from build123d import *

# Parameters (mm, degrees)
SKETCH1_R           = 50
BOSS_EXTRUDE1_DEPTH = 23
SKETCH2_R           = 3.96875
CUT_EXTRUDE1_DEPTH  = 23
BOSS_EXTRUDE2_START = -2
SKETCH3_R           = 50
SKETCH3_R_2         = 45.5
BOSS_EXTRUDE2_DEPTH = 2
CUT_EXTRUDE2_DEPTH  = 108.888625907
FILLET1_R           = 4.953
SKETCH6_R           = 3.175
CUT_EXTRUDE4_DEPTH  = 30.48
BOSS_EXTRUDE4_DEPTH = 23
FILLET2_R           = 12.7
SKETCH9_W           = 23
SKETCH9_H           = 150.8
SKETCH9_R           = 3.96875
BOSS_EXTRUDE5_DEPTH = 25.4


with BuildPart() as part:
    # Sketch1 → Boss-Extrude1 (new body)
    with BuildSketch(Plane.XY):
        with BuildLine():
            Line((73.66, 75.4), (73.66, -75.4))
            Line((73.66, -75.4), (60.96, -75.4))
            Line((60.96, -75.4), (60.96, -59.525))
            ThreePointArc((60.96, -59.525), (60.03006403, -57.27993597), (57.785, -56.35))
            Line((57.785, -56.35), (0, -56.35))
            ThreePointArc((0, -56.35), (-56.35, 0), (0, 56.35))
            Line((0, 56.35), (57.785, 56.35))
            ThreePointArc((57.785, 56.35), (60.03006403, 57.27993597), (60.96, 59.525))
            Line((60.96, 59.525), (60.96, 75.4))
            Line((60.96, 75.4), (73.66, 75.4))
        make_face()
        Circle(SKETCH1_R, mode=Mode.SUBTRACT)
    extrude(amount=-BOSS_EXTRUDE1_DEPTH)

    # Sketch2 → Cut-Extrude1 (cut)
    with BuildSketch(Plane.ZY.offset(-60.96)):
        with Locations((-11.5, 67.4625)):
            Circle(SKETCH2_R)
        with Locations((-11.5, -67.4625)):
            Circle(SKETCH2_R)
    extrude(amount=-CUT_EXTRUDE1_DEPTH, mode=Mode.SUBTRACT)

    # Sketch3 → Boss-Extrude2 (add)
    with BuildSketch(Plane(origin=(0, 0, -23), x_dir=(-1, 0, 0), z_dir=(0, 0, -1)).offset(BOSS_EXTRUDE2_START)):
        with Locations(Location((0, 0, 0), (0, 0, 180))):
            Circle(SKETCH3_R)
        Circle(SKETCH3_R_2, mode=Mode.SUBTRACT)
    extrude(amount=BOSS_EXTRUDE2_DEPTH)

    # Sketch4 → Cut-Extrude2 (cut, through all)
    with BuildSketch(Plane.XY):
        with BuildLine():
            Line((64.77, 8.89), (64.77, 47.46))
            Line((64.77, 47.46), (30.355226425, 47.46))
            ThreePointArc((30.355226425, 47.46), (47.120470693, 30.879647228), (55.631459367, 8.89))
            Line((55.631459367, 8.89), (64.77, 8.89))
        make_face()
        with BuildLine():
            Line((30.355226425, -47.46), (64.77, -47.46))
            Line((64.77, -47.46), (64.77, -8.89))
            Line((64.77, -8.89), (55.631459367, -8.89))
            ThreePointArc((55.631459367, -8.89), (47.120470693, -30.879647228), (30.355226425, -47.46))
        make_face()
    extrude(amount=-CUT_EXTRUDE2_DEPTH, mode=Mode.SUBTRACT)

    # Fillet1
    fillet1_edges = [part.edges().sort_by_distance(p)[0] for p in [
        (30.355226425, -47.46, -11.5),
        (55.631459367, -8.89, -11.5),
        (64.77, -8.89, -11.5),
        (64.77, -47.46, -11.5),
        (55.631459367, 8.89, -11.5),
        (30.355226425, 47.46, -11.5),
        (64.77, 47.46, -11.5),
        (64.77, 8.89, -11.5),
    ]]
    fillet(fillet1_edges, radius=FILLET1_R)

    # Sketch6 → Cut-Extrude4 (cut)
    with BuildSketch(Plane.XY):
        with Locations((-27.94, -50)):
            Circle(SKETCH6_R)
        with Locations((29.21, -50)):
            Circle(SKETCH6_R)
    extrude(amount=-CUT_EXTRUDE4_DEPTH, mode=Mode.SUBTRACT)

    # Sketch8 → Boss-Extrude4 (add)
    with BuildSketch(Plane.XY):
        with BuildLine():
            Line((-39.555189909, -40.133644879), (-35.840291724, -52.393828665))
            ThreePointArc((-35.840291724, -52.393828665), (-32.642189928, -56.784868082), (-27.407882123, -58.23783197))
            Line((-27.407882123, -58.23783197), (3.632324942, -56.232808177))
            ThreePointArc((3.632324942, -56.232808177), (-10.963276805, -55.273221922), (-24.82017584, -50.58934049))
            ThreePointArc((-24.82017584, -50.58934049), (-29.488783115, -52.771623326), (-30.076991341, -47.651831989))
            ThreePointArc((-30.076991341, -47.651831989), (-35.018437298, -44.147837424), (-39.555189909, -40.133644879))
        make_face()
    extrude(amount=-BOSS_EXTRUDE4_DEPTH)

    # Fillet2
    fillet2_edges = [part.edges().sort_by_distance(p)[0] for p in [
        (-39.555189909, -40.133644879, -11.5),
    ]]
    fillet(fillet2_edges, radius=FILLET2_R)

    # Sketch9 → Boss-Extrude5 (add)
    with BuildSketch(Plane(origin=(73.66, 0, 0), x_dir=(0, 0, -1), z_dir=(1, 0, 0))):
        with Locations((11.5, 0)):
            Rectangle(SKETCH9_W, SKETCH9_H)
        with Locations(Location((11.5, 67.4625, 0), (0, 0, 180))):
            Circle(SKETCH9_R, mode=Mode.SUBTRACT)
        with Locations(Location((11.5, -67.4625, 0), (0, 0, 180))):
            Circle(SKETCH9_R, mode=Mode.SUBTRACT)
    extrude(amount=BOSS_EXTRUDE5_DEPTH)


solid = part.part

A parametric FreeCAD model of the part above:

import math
import FreeCAD as App
import Part
import Sketcher

V = App.Vector
Q = App.Units.Quantity


def edges_at(feature, points):
    """Names of the edges that pass closest to the given points."""
    edges = feature.Shape.Edges
    near = lambda p: min(range(len(edges)), key=lambda i: edges[i].distToShape(Part.Vertex(*p))[0])
    return sorted({f"Edge{near(p) + 1}" for p in points})

doc = App.newDocument("Part")
body = doc.addObject("PartDesign::Body", "Body")

# Sketch on XY plane
sketch1 = body.newObject("Sketcher::SketchObject", "Sketch")
sketch1.AttachmentSupport = (doc.getObject("XY_Plane"), [""])
sketch1.MapMode = "FlatFace"
sketch1.addGeometry(Part.LineSegment(V(73.66, -75.4, 0), V(73.66, 75.4, 0)), False)
sketch1.addGeometry(Part.LineSegment(V(73.66, 75.4, 0), V(60.96, 75.4, 0)), False)
sketch1.addGeometry(Part.LineSegment(V(60.96, 75.4, 0), V(60.96, 59.525, 0)), False)
sketch1.addGeometry(Part.ArcOfCircle(Part.Circle(V(57.785, 59.525, 0), V(0, 0, 1), 3.175), math.radians(-90), math.radians(0)), False)
sketch1.addGeometry(Part.LineSegment(V(57.785, 56.35, 0), V(0, 56.35, 0)), False)
sketch1.addGeometry(Part.ArcOfCircle(Part.Circle(V(0, 0, 0), V(0, 0, 1), 56.35), math.radians(90), math.radians(270)), False)
sketch1.addGeometry(Part.LineSegment(V(0, -56.35, 0), V(57.785, -56.35, 0)), False)
sketch1.addGeometry(Part.ArcOfCircle(Part.Circle(V(57.785, -59.525, 0), V(0, 0, 1), 3.175), math.radians(0), math.radians(90)), False)
sketch1.addGeometry(Part.LineSegment(V(60.96, -59.525, 0), V(60.96, -75.4, 0)), False)
sketch1.addGeometry(Part.LineSegment(V(60.96, -75.4, 0), V(73.66, -75.4, 0)), False)
sketch1.addGeometry(Part.Circle(V(0, 0, 0), V(0, 0, 1), 50), False)
sketch1.addConstraint(Sketcher.Constraint("Coincident", 0, 2, 1, 1))
sketch1.addConstraint(Sketcher.Constraint("Coincident", 1, 2, 2, 1))
sketch1.addConstraint(Sketcher.Constraint("Tangent", 2, 2, 3, 2))
sketch1.addConstraint(Sketcher.Constraint("Tangent", 3, 1, 4, 1))
sketch1.addConstraint(Sketcher.Constraint("Tangent", 4, 2, 5, 1))
sketch1.addConstraint(Sketcher.Constraint("Tangent", 5, 2, 6, 1))
sketch1.addConstraint(Sketcher.Constraint("Tangent", 6, 2, 7, 2))
sketch1.addConstraint(Sketcher.Constraint("Tangent", 7, 1, 8, 1))
sketch1.addConstraint(Sketcher.Constraint("Coincident", 8, 2, 9, 1))
sketch1.addConstraint(Sketcher.Constraint("Coincident", 9, 2, 0, 1))
sketch1.addConstraint(Sketcher.Constraint("Vertical", 0))
sketch1.addConstraint(Sketcher.Constraint("Horizontal", 1))
sketch1.addConstraint(Sketcher.Constraint("Vertical", 2))
sketch1.addConstraint(Sketcher.Constraint("Horizontal", 4))
sketch1.addConstraint(Sketcher.Constraint("Horizontal", 6))
sketch1.addConstraint(Sketcher.Constraint("Vertical", 8))
sketch1.addConstraint(Sketcher.Constraint("Horizontal", 9))
sketch1.addConstraint(Sketcher.Constraint("Coincident", 5, 3, -1, 1))
sketch1.addConstraint(Sketcher.Constraint("Coincident", 10, 3, -1, 1))
sketch1.addConstraint(Sketcher.Constraint("Equal", 3, 7))
sketch1.addConstraint(Sketcher.Constraint("Symmetric", 1, 2, 8, 2, -1))
sketch1.addConstraint(Sketcher.Constraint("DistanceX", 1, 2, 1, 1, Q("0.5 in")))
sketch1.addConstraint(Sketcher.Constraint("Radius", 3, Q("0.125 in")))
sketch1.addConstraint(Sketcher.Constraint("DistanceX", -1, 1, 0, 2, Q("2.9 in")))
sketch1.addConstraint(Sketcher.Constraint("Diameter", 10, Q("100 mm")))
sketch1.addConstraint(Sketcher.Constraint("DistanceY", 2, 2, 2, 1, Q("0.625 in")))
sketch1.addConstraint(Sketcher.Constraint("Radius", 5, Q("56.35 mm")))
pad1 = body.newObject("PartDesign::Pad", "Pad")
pad1.Profile = sketch1
pad1.Length = 23
pad1.Reversed = True

# Sketch on YZ plane
sketch2 = body.newObject("Sketcher::SketchObject", "Sketch001")
sketch2.AttachmentSupport = (doc.getObject("YZ_Plane"), [""])
sketch2.MapMode = "FlatFace"
sketch2.AttachmentOffset = App.Placement(V(0, 0, 2.4 * 25.4), App.Rotation())
sketch2.addGeometry(Part.Circle(V(67.4625, -11.5, 0), V(0, 0, 1), 3.96875), False)
sketch2.addGeometry(Part.Circle(V(-67.4625, -11.5, 0), V(0, 0, 1), 3.96875), False)
sketch2.addConstraint(Sketcher.Constraint("Equal", 0, 1))
sketch2.addConstraint(Sketcher.Constraint("Symmetric", 0, 3, 1, 3, -2))
sketch2.addConstraint(Sketcher.Constraint("Diameter", 0, Q("0.3125 in")))
sketch2.addConstraint(Sketcher.Constraint("DistanceX", -1, 1, 0, 3, Q("67.4625 mm")))
sketch2.addConstraint(Sketcher.Constraint("DistanceY", 0, 3, -1, 1, Q("11.5 mm")))
pocket1 = body.newObject("PartDesign::Pocket", "Pocket")
pocket1.Profile = sketch2
pocket1.Length = 23
pocket1.Reversed = True

# Sketch on XY plane
sketch3 = body.newObject("Sketcher::SketchObject", "Sketch002")
sketch3.AttachmentSupport = (doc.getObject("XY_Plane"), [""])
sketch3.MapMode = "FlatFace"
sketch3.AttachmentOffset = App.Placement(V(0, 0, -21), App.Rotation())
sketch3.addGeometry(Part.Circle(V(0, 0, 0), V(0, 0, 1), 50), False)
sketch3.addGeometry(Part.Circle(V(0, 0, 0), V(0, 0, 1), 45.5), False)
sketch3.addConstraint(Sketcher.Constraint("Coincident", 0, 3, -1, 1))
sketch3.addConstraint(Sketcher.Constraint("Coincident", 1, 3, -1, 1))
sketch3.addConstraint(Sketcher.Constraint("Diameter", 0, Q("100 mm")))
sketch3.addConstraint(Sketcher.Constraint("Diameter", 1, Q("91 mm")))
pad2 = body.newObject("PartDesign::Pad", "Pad001")
pad2.Profile = sketch3
pad2.Length = 2
pad2.Reversed = True

# Sketch on XY plane
sketch4 = body.newObject("Sketcher::SketchObject", "Sketch003")
sketch4.AttachmentSupport = (doc.getObject("XY_Plane"), [""])
sketch4.MapMode = "FlatFace"
sketch4.addGeometry(Part.LineSegment(V(64.77, 8.89, 0), V(64.77, 47.46, 0)), False)
sketch4.addGeometry(Part.LineSegment(V(64.77, 47.46, 0), V(30.355226, 47.46, 0)), False)
sketch4.addGeometry(Part.ArcOfCircle(Part.Circle(V(0, 0, 0), V(0, 0, 1), 56.3373), math.radians(9.079197), math.radians(57.397181)), False)
sketch4.addGeometry(Part.LineSegment(V(55.631459, 8.89, 0), V(64.77, 8.89, 0)), False)
sketch4.addGeometry(Part.LineSegment(V(30.355226, -47.46, 0), V(64.77, -47.46, 0)), False)
sketch4.addGeometry(Part.LineSegment(V(64.77, -47.46, 0), V(64.77, -8.89, 0)), False)
sketch4.addGeometry(Part.LineSegment(V(64.77, -8.89, 0), V(55.631459, -8.89, 0)), False)
sketch4.addGeometry(Part.ArcOfCircle(Part.Circle(V(0, 0, 0), V(0, 0, 1), 56.3373), math.radians(-57.397181), math.radians(-9.079197)), False)
sketch4.addConstraint(Sketcher.Constraint("Coincident", 0, 2, 1, 1))
sketch4.addConstraint(Sketcher.Constraint("Coincident", 1, 2, 2, 2))
sketch4.addConstraint(Sketcher.Constraint("Coincident", 2, 1, 3, 1))
sketch4.addConstraint(Sketcher.Constraint("Coincident", 3, 2, 0, 1))
sketch4.addConstraint(Sketcher.Constraint("Coincident", 4, 2, 5, 1))
sketch4.addConstraint(Sketcher.Constraint("Coincident", 5, 2, 6, 1))
sketch4.addConstraint(Sketcher.Constraint("Coincident", 6, 2, 7, 2))
sketch4.addConstraint(Sketcher.Constraint("Coincident", 7, 1, 4, 1))
sketch4.addConstraint(Sketcher.Constraint("Vertical", 0))
sketch4.addConstraint(Sketcher.Constraint("Horizontal", 1))
sketch4.addConstraint(Sketcher.Constraint("Horizontal", 3))
sketch4.addConstraint(Sketcher.Constraint("Horizontal", 4))
sketch4.addConstraint(Sketcher.Constraint("Vertical", 5))
sketch4.addConstraint(Sketcher.Constraint("Horizontal", 6))
sketch4.addConstraint(Sketcher.Constraint("Coincident", 2, 3, -1, 1))
sketch4.addConstraint(Sketcher.Constraint("Coincident", 7, 3, -1, 1))
sketch4.addConstraint(Sketcher.Constraint("Equal", 2, 7))
sketch4.addConstraint(Sketcher.Constraint("Symmetric", 0, 2, 4, 2, -1))
sketch4.addConstraint(Sketcher.Constraint("Vertical", 2, 1, 6, 2))
sketch4.addConstraint(Sketcher.Constraint("DistanceY", 5, 2, 3, 2, Q("0.7 in")))
sketch4.addConstraint(Sketcher.Constraint("DistanceX", -1, 1, 0, 2, Q("2.55 in")))
sketch4.addConstraint(Sketcher.Constraint("Radius", 2, Q("56.3373 mm")))
sketch4.addConstraint(Sketcher.Constraint("DistanceY", 0, 1, 0, 2, Q("38.57 mm")))
pocket2 = body.newObject("PartDesign::Pocket", "Pocket001")
pocket2.Profile = sketch4
pocket2.Type = "ThroughAll"
doc.recompute()

fillet = body.newObject("PartDesign::Fillet", "Fillet")
fillet.Base = (pocket2, edges_at(pocket2, [
    (30.355, -47.46, -11.5),
    (55.631, -8.89, -11.5),
    (64.77, -8.89, -11.5),
    (64.77, -47.46, -11.5),
    (55.631, 8.89, -11.5),
    (30.355, 47.46, -11.5),
    (64.77, 47.46, -11.5),
    (64.77, 8.89, -11.5),
]))
fillet.Radius = Q("0.195 in")

# Sketch on XY plane
sketch5 = body.newObject("Sketcher::SketchObject", "Sketch004")
sketch5.AttachmentSupport = (doc.getObject("XY_Plane"), [""])
sketch5.MapMode = "FlatFace"
sketch5.addGeometry(Part.Circle(V(-27.94, -50, 0), V(0, 0, 1), 3.175), False)
sketch5.addGeometry(Part.Circle(V(29.21, -50, 0), V(0, 0, 1), 3.175), False)
sketch5.addConstraint(Sketcher.Constraint("Equal", 0, 1))
sketch5.addConstraint(Sketcher.Constraint("Horizontal", 0, 3, 1, 3))
sketch5.addConstraint(Sketcher.Constraint("Diameter", 0, Q("0.25 in")))
sketch5.addConstraint(Sketcher.Constraint("DistanceX", 0, 3, -1, 1, Q("1.1 in")))
sketch5.addConstraint(Sketcher.Constraint("DistanceX", -1, 1, 1, 3, Q("1.15 in")))
sketch5.addConstraint(Sketcher.Constraint("DistanceY", 0, 3, -1, 1, Q("50 mm")))
pocket3 = body.newObject("PartDesign::Pocket", "Pocket002")
pocket3.Profile = sketch5
pocket3.Length = Q("1.2 in")

# Sketch on XY plane
sketch6 = body.newObject("Sketcher::SketchObject", "Sketch005")
sketch6.AttachmentSupport = (doc.getObject("XY_Plane"), [""])
sketch6.MapMode = "FlatFace"
sketch6.addGeometry(Part.LineSegment(V(-39.55519, -40.133645, 0), V(-35.840292, -52.393829, 0)), False)
sketch6.addGeometry(Part.ArcOfCircle(Part.Circle(V(-27.94, -50, 0), V(0, 0, 1), 8.255), math.radians(-163.142924), math.radians(-86.304148)), False)
sketch6.addGeometry(Part.LineSegment(V(-27.407882, -58.237832, 0), V(3.632325, -56.232808, 0)), False)
sketch6.addGeometry(Part.ArcOfCircle(Part.Circle(V(0, 0, 0), V(0, 0, 1), 56.35), math.radians(-116.133523), math.radians(-86.304148)), False)
sketch6.addGeometry(Part.ArcOfCircle(Part.Circle(V(-27.94, -50, 0), V(0, 0, 1), 3.175), math.radians(132.304309), math.radians(349.302773)), False)
sketch6.addGeometry(Part.ArcOfCircle(Part.Circle(V(0, 0, 0), V(0, 0, 1), 56.35), math.radians(-134.584102), math.radians(-122.259394)), False)
sketch6.addConstraint(Sketcher.Constraint("Tangent", 0, 2, 1, 1))
sketch6.addConstraint(Sketcher.Constraint("Tangent", 1, 2, 2, 1))
sketch6.addConstraint(Sketcher.Constraint("Tangent", 2, 2, 3, 2))
sketch6.addConstraint(Sketcher.Constraint("Coincident", 3, 1, 4, 2))
sketch6.addConstraint(Sketcher.Constraint("Coincident", 4, 1, 5, 2))
sketch6.addConstraint(Sketcher.Constraint("Coincident", 5, 1, 0, 1))
sketch6.addConstraint(Sketcher.Constraint("Coincident", 3, 3, -1, 1))
sketch6.addConstraint(Sketcher.Constraint("Coincident", 5, 3, -1, 1))
sketch6.addConstraint(Sketcher.Constraint("Coincident", 4, 3, 1, 3))
sketch6.addConstraint(Sketcher.Constraint("Equal", 3, 5))
sketch6.addConstraint(Sketcher.Constraint("Radius", 1, Q("0.325 in")))
sketch6.addConstraint(Sketcher.Constraint("Radius", 4, Q("0.125 in")))
sketch6.addConstraint(Sketcher.Constraint("DistanceX", 1, 3, -1, 1, Q("1.1 in")))
sketch6.addConstraint(Sketcher.Constraint("Radius", 3, Q("56.35 mm")))
sketch6.addConstraint(Sketcher.Constraint("DistanceY", 1, 3, -1, 1, Q("50 mm")))
sketch6.addConstraint(Sketcher.Constraint("DistanceX", 0, 2, 4, 1, Q("5.7633 mm")))
pad3 = body.newObject("PartDesign::Pad", "Pad002")
pad3.Profile = sketch6
pad3.Length = 23
pad3.Reversed = True
doc.recompute()

fillet2 = body.newObject("PartDesign::Fillet", "Fillet001")
fillet2.Base = (pad3, edges_at(pad3, [(-39.555, -40.134, -11.5)]))
fillet2.Radius = Q("0.5 in")

# Sketch on YZ plane
sketch7 = body.newObject("Sketcher::SketchObject", "Sketch006")
sketch7.AttachmentSupport = (doc.getObject("YZ_Plane"), [""])
sketch7.MapMode = "FlatFace"
sketch7.AttachmentOffset = App.Placement(V(0, 0, 2.9 * 25.4), App.Rotation())
sketch7.addGeometry(Part.LineSegment(V(75.4, 0, 0), V(-75.4, 0, 0)), False)
sketch7.addGeometry(Part.LineSegment(V(-75.4, 0, 0), V(-75.4, -23, 0)), False)
sketch7.addGeometry(Part.LineSegment(V(-75.4, -23, 0), V(75.4, -23, 0)), False)
sketch7.addGeometry(Part.LineSegment(V(75.4, -23, 0), V(75.4, 0, 0)), False)
sketch7.addGeometry(Part.Circle(V(-67.4625, -11.5, 0), V(0, 0, 1), 3.96875), False)
sketch7.addGeometry(Part.Circle(V(67.4625, -11.5, 0), V(0, 0, 1), 3.96875), False)
sketch7.addConstraint(Sketcher.Constraint("Coincident", 0, 2, 1, 1))
sketch7.addConstraint(Sketcher.Constraint("Coincident", 1, 2, 2, 1))
sketch7.addConstraint(Sketcher.Constraint("Coincident", 2, 2, 3, 1))
sketch7.addConstraint(Sketcher.Constraint("Coincident", 3, 2, 0, 1))
sketch7.addConstraint(Sketcher.Constraint("Horizontal", 0))
sketch7.addConstraint(Sketcher.Constraint("Vertical", 1))
sketch7.addConstraint(Sketcher.Constraint("Horizontal", 2))
sketch7.addConstraint(Sketcher.Constraint("Vertical", 3))
sketch7.addConstraint(Sketcher.Constraint("Equal", 4, 5))
sketch7.addConstraint(Sketcher.Constraint("Symmetric", 0, 2, 3, 2, -1, 1))
sketch7.addConstraint(Sketcher.Constraint("Symmetric", 4, 3, 5, 3, -2))
sketch7.addConstraint(Sketcher.Constraint("Diameter", 4, Q("0.3125 in")))
sketch7.addConstraint(Sketcher.Constraint("DistanceX", 0, 2, 4, 3, Q("0.3125 in")))
sketch7.addConstraint(Sketcher.Constraint("DistanceX", 0, 2, 0, 1, Q("150.8 mm")))
sketch7.addConstraint(Sketcher.Constraint("DistanceY", 1, 2, 1, 1, Q("23 mm")))
sketch7.addConstraint(Sketcher.Constraint("DistanceY", 4, 3, -1, 1, Q("11.5 mm")))
pad4 = body.newObject("PartDesign::Pad", "Pad003")
pad4.Profile = sketch7
pad4.Length = Q("1 in")

doc.recompute()
